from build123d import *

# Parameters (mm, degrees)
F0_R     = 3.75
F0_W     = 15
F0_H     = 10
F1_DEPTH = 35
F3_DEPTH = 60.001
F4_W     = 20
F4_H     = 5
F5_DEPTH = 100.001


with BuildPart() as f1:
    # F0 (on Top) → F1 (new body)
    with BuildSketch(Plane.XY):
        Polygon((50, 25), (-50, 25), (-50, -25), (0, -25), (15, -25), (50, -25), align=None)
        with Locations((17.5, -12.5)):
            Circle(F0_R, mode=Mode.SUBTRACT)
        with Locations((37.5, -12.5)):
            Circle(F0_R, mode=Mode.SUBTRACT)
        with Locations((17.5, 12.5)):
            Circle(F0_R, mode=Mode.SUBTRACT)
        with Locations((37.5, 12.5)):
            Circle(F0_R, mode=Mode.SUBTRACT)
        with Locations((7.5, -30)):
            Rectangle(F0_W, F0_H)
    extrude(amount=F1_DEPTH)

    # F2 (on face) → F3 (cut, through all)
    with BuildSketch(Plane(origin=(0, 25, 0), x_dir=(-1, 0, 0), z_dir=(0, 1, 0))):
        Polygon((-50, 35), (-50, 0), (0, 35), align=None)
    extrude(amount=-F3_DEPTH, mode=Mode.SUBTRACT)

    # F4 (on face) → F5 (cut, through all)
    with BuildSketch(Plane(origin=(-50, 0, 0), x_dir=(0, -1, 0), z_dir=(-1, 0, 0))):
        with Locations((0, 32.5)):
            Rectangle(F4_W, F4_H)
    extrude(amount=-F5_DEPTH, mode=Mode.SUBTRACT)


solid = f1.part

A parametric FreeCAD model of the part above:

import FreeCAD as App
import Part
import Sketcher
Q = App.Units.Quantity


def add_polygon(sketch, points):
    """Adds a closed chain of lines whose ends are joined by coincident constraints."""
    first, n = sketch.GeometryCount, len(points)
    for a, b in zip(points, points[1:] + points[:1]):
        sketch.addGeometry(Part.LineSegment(App.Vector(*a, 0), App.Vector(*b, 0)), False)
    for i in range(n):
        sketch.addConstraint(Sketcher.Constraint("Coincident", first + i, 2, first + (i + 1) % n, 1))

doc = App.newDocument("Part")
body = doc.addObject("PartDesign::Body", "Body")

sketch1 = body.newObject("Sketcher::SketchObject", "Sketch")
sketch1.AttachmentSupport = (doc.getObject("XY_Plane"), [""])
sketch1.MapMode = "FlatFace"
add_polygon(sketch1, [(50, 25), (-50, 25), (-50, -25), (0, -25), (0, -35), (15, -35), (15, -25), (50, -25)])
sketch1.addGeometry(Part.Circle(App.Vector(17.5, -12.5, 0), App.Vector(0, 0, 1), 3.8), False)
sketch1.addGeometry(Part.Circle(App.Vector(37.5, -12.5, 0), App.Vector(0, 0, 1), 3.8), False)
sketch1.addGeometry(Part.Circle(App.Vector(17.5, 12.5, 0), App.Vector(0, 0, 1), 3.8), False)
sketch1.addGeometry(Part.Circle(App.Vector(37.5, 12.5, 0), App.Vector(0, 0, 1), 3.8), False)
sketch1.addConstraint([
    Sketcher.Constraint("Horizontal", 0),
    Sketcher.Constraint("Vertical", 1),
    Sketcher.Constraint("Horizontal", 2),
    Sketcher.Constraint("Vertical", 3),
    Sketcher.Constraint("Horizontal", 4),
    Sketcher.Constraint("Vertical", 5),
    Sketcher.Constraint("Horizontal", 6),
    Sketcher.Constraint("Vertical", 7),
    Sketcher.Constraint("Equal", 8, 9),
    Sketcher.Constraint("Equal", 9, 10),
    Sketcher.Constraint("Equal", 10, 11),
    Sketcher.Constraint("Symmetric", 0, 2, 6, 2, -1, 1),
    Sketcher.Constraint("Symmetric", 8, 3, 10, 3, -1),
    Sketcher.Constraint("Symmetric", 9, 3, 11, 3, -1),
    Sketcher.Constraint("PointOnObject", 2, 2, -2),
    Sketcher.Constraint("Horizontal", 8, 3, 9, 3),
    Sketcher.Constraint("Horizontal", 2, 2, 5, 2),
    Sketcher.Constraint("Equal", 2, 1),
    Sketcher.Constraint("Diameter", 8, Q("7.5 mm")),
    Sketcher.Constraint("DistanceX", 0, 2, 0, 1, Q("100 mm")),
    Sketcher.Constraint("DistanceX", 4, 1, 4, 2, Q("15 mm")),
    Sketcher.Constraint("DistanceY", 3, 2, 3, 1, Q("10 mm")),
    Sketcher.Constraint("DistanceX", 8, 3, 9, 3, Q("20 mm")),
    Sketcher.Constraint("DistanceY", 8, 3, 10, 3, Q("25 mm")),
    Sketcher.Constraint("DistanceX", -1, 1, 8, 3, Q("17.5 mm")),
])
pad1 = body.newObject("PartDesign::Pad", "Pad")
pad1.Profile = sketch1
pad1.Length = 35

sketch2 = body.newObject("Sketcher::SketchObject", "Sketch001")
sketch2.AttachmentSupport = (doc.getObject("XZ_Plane"), [""])
sketch2.MapMode = "FlatFace"
sketch2.AttachmentOffset = App.Placement(App.Vector(0, 0, -25), App.Rotation())
add_polygon(sketch2, [(50, 35), (50, 0), (0, 35)])
sketch2.addConstraint([
    Sketcher.Constraint("Vertical", 0),
    Sketcher.Constraint("Horizontal", 2),
    Sketcher.Constraint("PointOnObject", 0, 2, -1),
    Sketcher.Constraint("PointOnObject", 1, 2, -2),
    Sketcher.Constraint("DistanceX", 2, 1, 2, 2, Q("50 mm")),
    Sketcher.Constraint("DistanceY", 0, 2, 0, 1, Q("35 mm")),
])
pocket1 = body.newObject("PartDesign::Pocket", "Pocket")
pocket1.Profile = sketch2
pocket1.Type = "ThroughAll"
pocket1.Reversed = True

sketch3 = body.newObject("Sketcher::SketchObject", "Sketch002")
sketch3.AttachmentSupport = (doc.getObject("YZ_Plane"), [""])
sketch3.MapMode = "FlatFace"
sketch3.AttachmentOffset = App.Placement(App.Vector(0, 0, -50), App.Rotation())
add_polygon(sketch3, [(10, 35), (10, 30), (-10, 30), (-10, 35)])
sketch3.addConstraint([
    Sketcher.Constraint("Vertical", 0),
    Sketcher.Constraint("Horizontal", 1),
    Sketcher.Constraint("Vertical", 2),
    Sketcher.Constraint("Horizontal", 3),
    Sketcher.Constraint("DistanceX", 1, 2, 1, 1, Q("20 mm")),
    Sketcher.Constraint("DistanceY", 0, 2, 0, 1, Q("5 mm")),
    Sketcher.Constraint("DistanceX", -1, 1, 0, 2, Q("10 mm")),
    Sketcher.Constraint("DistanceY", -1, 1, 0, 2, Q("30 mm")),
])
pocket2 = body.newObject("PartDesign::Pocket", "Pocket001")
pocket2.Profile = sketch3
pocket2.Type = "ThroughAll"
pocket2.Reversed = True

doc.recompute()
